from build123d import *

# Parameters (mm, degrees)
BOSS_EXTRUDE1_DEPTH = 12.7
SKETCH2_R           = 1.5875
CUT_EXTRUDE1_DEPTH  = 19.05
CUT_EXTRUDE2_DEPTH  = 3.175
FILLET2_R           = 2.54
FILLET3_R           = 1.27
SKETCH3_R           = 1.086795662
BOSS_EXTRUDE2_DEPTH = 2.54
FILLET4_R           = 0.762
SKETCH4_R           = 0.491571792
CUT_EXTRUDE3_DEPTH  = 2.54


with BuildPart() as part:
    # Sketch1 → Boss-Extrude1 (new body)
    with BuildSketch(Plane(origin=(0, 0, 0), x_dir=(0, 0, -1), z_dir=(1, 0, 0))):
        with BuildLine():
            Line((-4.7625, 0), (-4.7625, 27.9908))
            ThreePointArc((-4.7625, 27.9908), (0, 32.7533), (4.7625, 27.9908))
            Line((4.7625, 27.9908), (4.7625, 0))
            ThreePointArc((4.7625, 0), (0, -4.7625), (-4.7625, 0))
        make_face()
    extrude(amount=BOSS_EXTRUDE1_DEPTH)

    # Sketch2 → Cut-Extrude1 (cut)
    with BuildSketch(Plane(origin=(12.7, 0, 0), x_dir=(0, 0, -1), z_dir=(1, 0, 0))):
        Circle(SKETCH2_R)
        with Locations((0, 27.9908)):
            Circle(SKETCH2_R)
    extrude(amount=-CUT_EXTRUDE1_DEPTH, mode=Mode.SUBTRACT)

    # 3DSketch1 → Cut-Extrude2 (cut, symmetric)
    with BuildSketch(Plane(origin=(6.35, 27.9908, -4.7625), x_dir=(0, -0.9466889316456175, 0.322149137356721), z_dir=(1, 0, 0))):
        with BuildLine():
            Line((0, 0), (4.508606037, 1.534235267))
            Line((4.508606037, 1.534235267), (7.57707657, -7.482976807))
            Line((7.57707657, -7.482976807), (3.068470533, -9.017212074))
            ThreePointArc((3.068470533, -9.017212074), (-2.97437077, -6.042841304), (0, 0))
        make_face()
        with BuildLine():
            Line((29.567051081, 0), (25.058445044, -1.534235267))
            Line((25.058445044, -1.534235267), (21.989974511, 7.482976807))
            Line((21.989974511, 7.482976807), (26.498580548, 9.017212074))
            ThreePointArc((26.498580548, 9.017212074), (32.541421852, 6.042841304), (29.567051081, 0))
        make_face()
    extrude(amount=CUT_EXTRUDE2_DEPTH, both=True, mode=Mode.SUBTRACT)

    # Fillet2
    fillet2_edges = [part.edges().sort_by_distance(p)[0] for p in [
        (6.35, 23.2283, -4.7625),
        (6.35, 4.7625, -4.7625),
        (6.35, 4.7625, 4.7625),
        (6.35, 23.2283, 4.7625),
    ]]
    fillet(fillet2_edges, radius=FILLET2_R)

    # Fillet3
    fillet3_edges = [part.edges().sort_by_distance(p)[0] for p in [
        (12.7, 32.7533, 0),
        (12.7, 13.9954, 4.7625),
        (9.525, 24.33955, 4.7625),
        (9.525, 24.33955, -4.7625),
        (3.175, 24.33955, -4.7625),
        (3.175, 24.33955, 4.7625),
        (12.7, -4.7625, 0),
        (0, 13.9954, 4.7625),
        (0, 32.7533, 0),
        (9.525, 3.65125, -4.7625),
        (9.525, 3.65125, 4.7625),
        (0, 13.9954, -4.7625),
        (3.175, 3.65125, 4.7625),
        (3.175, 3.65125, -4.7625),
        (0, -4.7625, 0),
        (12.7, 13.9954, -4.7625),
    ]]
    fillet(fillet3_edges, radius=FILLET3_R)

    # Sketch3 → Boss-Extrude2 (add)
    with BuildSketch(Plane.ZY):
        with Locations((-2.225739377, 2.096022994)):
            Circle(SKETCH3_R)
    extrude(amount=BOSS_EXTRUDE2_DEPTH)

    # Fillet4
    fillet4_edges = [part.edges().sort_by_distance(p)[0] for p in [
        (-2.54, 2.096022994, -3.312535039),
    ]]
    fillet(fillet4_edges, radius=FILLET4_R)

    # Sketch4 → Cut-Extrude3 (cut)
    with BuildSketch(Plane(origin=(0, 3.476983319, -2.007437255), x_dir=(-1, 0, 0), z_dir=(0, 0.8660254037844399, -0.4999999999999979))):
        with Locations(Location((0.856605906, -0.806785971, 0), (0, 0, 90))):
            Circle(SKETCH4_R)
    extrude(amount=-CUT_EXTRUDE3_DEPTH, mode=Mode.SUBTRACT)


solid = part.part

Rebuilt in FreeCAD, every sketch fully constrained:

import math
import FreeCAD as App
import Part
import Sketcher
from FreeCAD import Vector
Q = App.Units.Quantity


def edges_at(feature, points):
    """Names of the edges that pass closest to the given points."""
    edges = feature.Shape.Edges
    near = lambda p: min(range(len(edges)), key=lambda i: edges[i].distToShape(Part.Vertex(*p))[0])
    return sorted({f"Edge{near(p) + 1}" for p in points})

doc = App.newDocument("Part")
body = doc.addObject("PartDesign::Body", "Body")

# Sketch on YZ plane
sketch1 = doc.addObject("Sketcher::SketchObject", "Sketch")
body.addObject(sketch1)
sketch1.AttachmentSupport = (doc.YZ_Plane, [""])
sketch1.MapMode = "FlatFace"
sketch1.addGeometry(Part.LineSegment(Vector(28, 4.8, 0), Vector(0, 4.8, 0)), False)
sketch1.addGeometry(Part.ArcOfCircle(Part.Circle(Vector(0, 0, 0), Vector(0, 0, 1), 4.8), math.radians(90), math.radians(270)), False)
sketch1.addGeometry(Part.LineSegment(Vector(0, -4.8, 0), Vector(28, -4.8, 0)), False)
sketch1.addGeometry(Part.ArcOfCircle(Part.Circle(Vector(28, 0, 0), Vector(0, 0, 1), 4.8), math.radians(-90), math.radians(90)), False)
sketch1.addConstraint(Sketcher.Constraint("Tangent", 0, 2, 1, 1))
sketch1.addConstraint(Sketcher.Constraint("Tangent", 1, 2, 2, 1))
sketch1.addConstraint(Sketcher.Constraint("Tangent", 2, 2, 3, 1))
sketch1.addConstraint(Sketcher.Constraint("Tangent", 3, 2, 0, 1))
sketch1.addConstraint(Sketcher.Constraint("Horizontal", 0))
sketch1.addConstraint(Sketcher.Constraint("Horizontal", 2))
sketch1.addConstraint(Sketcher.Constraint("Coincident", 1, 3, -1, 1))
sketch1.addConstraint(Sketcher.Constraint("Radius", 1, Q("0.1875 in")))
sketch1.addConstraint(Sketcher.Constraint("DistanceX", 0, 2, 0, 1, Q("1.102 in")))
pad1 = doc.addObject("PartDesign::Pad", "Pad")
body.addObject(pad1)
pad1.Profile = sketch1
pad1.Length = Q("0.5 in")

# Sketch on YZ plane
sketch2 = doc.addObject("Sketcher::SketchObject", "Sketch001")
body.addObject(sketch2)
sketch2.AttachmentSupport = (doc.YZ_Plane, [""])
sketch2.MapMode = "FlatFace"
sketch2.AttachmentOffset = App.Placement(Vector(0, 0, 0.5 * 25.4), App.Rotation())
sketch2.addGeometry(Part.Circle(Vector(0, 0, 0), Vector(0, 0, 1), 1.6), False)
sketch2.addGeometry(Part.Circle(Vector(28, 0, 0), Vector(0, 0, 1), 1.6), False)
sketch2.addConstraint(Sketcher.Constraint("Coincident", 0, 3, -1, 1))
sketch2.addConstraint(Sketcher.Constraint("Equal", 0, 1))
sketch2.addConstraint(Sketcher.Constraint("PointOnObject", 1, 3, -1))
sketch2.addConstraint(Sketcher.Constraint("Diameter", 0, Q("0.125 in")))
sketch2.addConstraint(Sketcher.Constraint("DistanceX", -1, 1, 1, 3, Q("1.102 in")))
pocket1 = doc.addObject("PartDesign::Pocket", "Pocket")
body.addObject(pocket1)
pocket1.Profile = sketch2
pocket1.Length = Q("0.75 in")

# Sketch on YZ plane
sketch3 = doc.addObject("Sketcher::SketchObject", "Sketch002")
body.addObject(sketch3)
sketch3.AttachmentSupport = (doc.YZ_Plane, [""])
sketch3.MapMode = "FlatFace"
sketch3.AttachmentOffset = App.Placement(Vector(0, 0, 0.25 * 25.4), App.Rotation())
sketch3.addGeometry(Part.LineSegment(Vector(23.2, -4.8, 0), Vector(28, -4.8, 0)), False)
sketch3.addGeometry(Part.ArcOfCircle(Part.Circle(Vector(28, 0, 0), Vector(0, 0, 1), 4.8), math.radians(-90), math.radians(90)), False)
sketch3.addGeometry(Part.LineSegment(Vector(28, 4.8, 0), Vector(23.2, 4.8, 0)), False)
sketch3.addGeometry(Part.LineSegment(Vector(23.2, 4.8, 0), Vector(23.2, -4.8, 0)), False)
sketch3.addGeometry(Part.LineSegment(Vector(4.8, 4.8, 0), Vector(0, 4.8, 0)), False)
sketch3.addGeometry(Part.ArcOfCircle(Part.Circle(Vector(0, 0, 0), Vector(0, 0, 1), 4.8), math.radians(90), math.radians(270)), False)
sketch3.addGeometry(Part.LineSegment(Vector(0, -4.8, 0), Vector(4.8, -4.8, 0)), False)
sketch3.addGeometry(Part.LineSegment(Vector(4.8, -4.8, 0), Vector(4.8, 4.8, 0)), False)
sketch3.addConstraint(Sketcher.Constraint("Tangent", 0, 2, 1, 1))
sketch3.addConstraint(Sketcher.Constraint("Tangent", 1, 2, 2, 1))
sketch3.addConstraint(Sketcher.Constraint("Coincident", 2, 2, 3, 1))
sketch3.addConstraint(Sketcher.Constraint("Coincident", 3, 2, 0, 1))
sketch3.addConstraint(Sketcher.Constraint("Tangent", 4, 2, 5, 1))
sketch3.addConstraint(Sketcher.Constraint("Tangent", 5, 2, 6, 1))
sketch3.addConstraint(Sketcher.Constraint("Coincident", 6, 2, 7, 1))
sketch3.addConstraint(Sketcher.Constraint("Coincident", 7, 2, 4, 1))
sketch3.addConstraint(Sketcher.Constraint("Horizontal", 0))
sketch3.addConstraint(Sketcher.Constraint("Horizontal", 2))
sketch3.addConstraint(Sketcher.Constraint("Vertical", 3))
sketch3.addConstraint(Sketcher.Constraint("Horizontal", 4))
sketch3.addConstraint(Sketcher.Constraint("Horizontal", 6))
sketch3.addConstraint(Sketcher.Constraint("Vertical", 7))
sketch3.addConstraint(Sketcher.Constraint("Coincident", 5, 3, -1, 1))
sketch3.addConstraint(Sketcher.Constraint("Equal", 1, 5))
sketch3.addConstraint(Sketcher.Constraint("PointOnObject", 1, 3, -1))
sketch3.addConstraint(Sketcher.Constraint("Equal", 2, 4))
sketch3.addConstraint(Sketcher.Constraint("Radius", 1, Q("0.1875 in")))
sketch3.addConstraint(Sketcher.Constraint("DistanceX", 0, 1, 0, 2, Q("0.1875 in")))
sketch3.addConstraint(Sketcher.Constraint("DistanceX", -1, 1, 1, 3, Q("1.102 in")))
pocket2 = doc.addObject("PartDesign::Pocket", "Pocket001")
body.addObject(pocket2)
pocket2.Profile = sketch3
pocket2.Length = Q("0.25 in")
pocket2.Midplane = True
doc.recompute()

fillet = doc.addObject("PartDesign::Fillet", "Fillet")
body.addObject(fillet)
fillet.Base = (pocket2, edges_at(pocket2, [
    (6.35, 23.228, -4.763),
    (6.35, 4.763, -4.763),
    (6.35, 4.763, 4.763),
    (6.35, 23.228, 4.763),
]))
fillet.Radius = Q("0.1 in")
doc.recompute()

fillet2 = doc.addObject("PartDesign::Fillet", "Fillet001")
body.addObject(fillet2)
fillet2.Base = (fillet, edges_at(fillet, [
    (12.7, 32.753, 0),
    (12.7, 13.995, 4.763),
    (9.525, 25.61, 4.763),
    (9.525, 25.61, -4.763),
    (3.175, 25.61, -4.763),
    (3.175, 25.61, 4.763),
    (12.7, -4.763, 0),
    (0, 13.995, 4.763),
    (0, 32.753, 0),
    (9.525, 2.381, -4.763),
    (9.525, 2.381, 4.763),
    (0, 13.995, -4.763),
    (3.175, 2.381, 4.763),
    (3.175, 2.381, -4.763),
    (0, -4.763, 0),
    (12.7, 13.995, -4.763),
]))
fillet2.Radius = Q("0.05 in")

# Sketch on YZ plane
sketch4 = doc.addObject("Sketcher::SketchObject", "Sketch003")
body.addObject(sketch4)
sketch4.AttachmentSupport = (doc.YZ_Plane, [""])
sketch4.MapMode = "FlatFace"
sketch4.addGeometry(Part.Circle(Vector(2.1, -2.2, 0), Vector(0, 0, 1), 1.1), False)
sketch4.addConstraint(Sketcher.Constraint("Diameter", 0, Q("2.173591 mm")))
sketch4.addConstraint(Sketcher.Constraint("DistanceY", 0, 3, -1, 1, Q("2.225739 mm")))
sketch4.addConstraint(Sketcher.Constraint("DistanceX", -1, 1, 0, 3, Q("2.096023 mm")))
pad2 = doc.addObject("PartDesign::Pad", "Pad001")
body.addObject(pad2)
pad2.Profile = sketch4
pad2.Length = Q("0.1 in")
pad2.Reversed = True
doc.recompute()

fillet3 = doc.addObject("PartDesign::Fillet", "Fillet002")
body.addObject(fillet3)
fillet3.Base = (pad2, edges_at(pad2, [(-2.54, 2.096, -3.313)]))
fillet3.Radius = Q("0.03 in")

# Sketch on an angled plane
sketch5 = doc.addObject("Sketcher::SketchObject", "Sketch004")
body.addObject(sketch5)
sketch5.Placement = App.Placement(Vector(0, 3.476983, -2.007437), App.Rotation(Vector(-1, 0, 0), Vector(0, 0.5, 0.866025404), Vector(0, 0.866025404, -0.5), "ZXY"))
sketch5.addGeometry(Part.Circle(Vector(0.86, -0.81, 0), Vector(0, 0, 1), 0.49), False)
sketch5.addConstraint(Sketcher.Constraint("Diameter", 0, Q("0.983144 mm")))
sketch5.addConstraint(Sketcher.Constraint("DistanceX", -1, 1, 0, 3, Q("0.856606 mm")))
sketch5.addConstraint(Sketcher.Constraint("DistanceY", 0, 3, -1, 1, Q("0.806786 mm")))
pocket3 = doc.addObject("PartDesign::Pocket", "Pocket002")
body.addObject(pocket3)
pocket3.Profile = sketch5
pocket3.Length = Q("0.1 in")

doc.recompute()
